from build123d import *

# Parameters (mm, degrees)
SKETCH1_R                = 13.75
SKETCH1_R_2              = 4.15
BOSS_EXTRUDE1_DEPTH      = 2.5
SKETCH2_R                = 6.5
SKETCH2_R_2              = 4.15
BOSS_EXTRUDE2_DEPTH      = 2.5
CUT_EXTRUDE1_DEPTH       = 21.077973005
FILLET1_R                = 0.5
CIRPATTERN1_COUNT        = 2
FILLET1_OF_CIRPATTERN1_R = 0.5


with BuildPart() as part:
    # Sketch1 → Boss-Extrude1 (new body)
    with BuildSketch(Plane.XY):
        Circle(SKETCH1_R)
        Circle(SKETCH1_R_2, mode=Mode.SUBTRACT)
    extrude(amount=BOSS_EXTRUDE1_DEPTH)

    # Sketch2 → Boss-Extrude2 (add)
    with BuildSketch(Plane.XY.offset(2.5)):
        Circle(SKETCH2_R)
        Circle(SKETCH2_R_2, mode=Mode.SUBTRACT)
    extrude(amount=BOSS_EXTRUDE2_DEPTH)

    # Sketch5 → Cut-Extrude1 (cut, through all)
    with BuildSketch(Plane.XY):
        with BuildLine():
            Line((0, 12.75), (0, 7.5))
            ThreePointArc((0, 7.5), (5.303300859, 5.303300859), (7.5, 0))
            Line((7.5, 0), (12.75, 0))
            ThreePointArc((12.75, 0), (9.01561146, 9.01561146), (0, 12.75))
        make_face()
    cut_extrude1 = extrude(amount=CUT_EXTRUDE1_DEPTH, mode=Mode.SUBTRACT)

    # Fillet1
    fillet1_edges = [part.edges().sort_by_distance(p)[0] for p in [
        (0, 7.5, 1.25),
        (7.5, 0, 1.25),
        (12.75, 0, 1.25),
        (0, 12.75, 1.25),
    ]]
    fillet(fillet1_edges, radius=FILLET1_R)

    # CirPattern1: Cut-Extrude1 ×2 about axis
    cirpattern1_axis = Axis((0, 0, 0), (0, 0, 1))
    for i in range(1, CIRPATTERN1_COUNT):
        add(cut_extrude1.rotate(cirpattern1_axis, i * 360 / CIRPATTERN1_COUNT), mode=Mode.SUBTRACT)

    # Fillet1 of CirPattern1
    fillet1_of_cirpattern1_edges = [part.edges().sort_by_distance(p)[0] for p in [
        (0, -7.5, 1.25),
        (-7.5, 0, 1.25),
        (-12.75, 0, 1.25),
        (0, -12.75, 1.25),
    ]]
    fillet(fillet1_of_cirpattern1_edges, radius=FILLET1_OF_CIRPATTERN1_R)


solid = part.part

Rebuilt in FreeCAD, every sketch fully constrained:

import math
import FreeCAD as App
import Part
import Sketcher

V = App.Vector


def edges_at(feature, points):
    """Names of the edges that pass closest to the given points."""
    edges = feature.Shape.Edges
    near = lambda p: min(range(len(edges)), key=lambda i: edges[i].distToShape(Part.Vertex(*p))[0])
    return sorted({f"Edge{near(p) + 1}" for p in points})

doc = App.newDocument("Part")
body = doc.addObject("PartDesign::Body", "Body")

# Sketch on XY plane
sketch1 = doc.addObject("Sketcher::SketchObject", "Sketch")
body.addObject(sketch1)
sketch1.AttachmentSupport = (doc.XY_Plane, [""])
sketch1.MapMode = "FlatFace"
sketch1.addGeometry(Part.Circle(V(0, 0, 0), V(0, 0, 1), 13.8), False)
sketch1.addGeometry(Part.Circle(V(0, 0, 0), V(0, 0, 1), 4.2), False)
sketch1.addConstraint(Sketcher.Constraint("Coincident", 0, 3, -1, 1))
sketch1.addConstraint(Sketcher.Constraint("Coincident", 1, 3, -1, 1))
sketch1.addConstraint(Sketcher.Constraint("Diameter", 0, 27.5))
sketch1.addConstraint(Sketcher.Constraint("Diameter", 1, 8.3))
pad1 = doc.addObject("PartDesign::Pad", "Pad")
body.addObject(pad1)
pad1.Profile = sketch1
pad1.Length = 2.5

# Sketch on XY plane
sketch2 = doc.addObject("Sketcher::SketchObject", "Sketch001")
body.addObject(sketch2)
sketch2.AttachmentSupport = (doc.XY_Plane, [""])
sketch2.MapMode = "FlatFace"
sketch2.AttachmentOffset = App.Placement(V(0, 0, 2.5), App.Rotation())
sketch2.addGeometry(Part.Circle(V(0, 0, 0), V(0, 0, 1), 6.5), False)
sketch2.addGeometry(Part.Circle(V(0, 0, 0), V(0, 0, 1), 4.2), False)
sketch2.addConstraint(Sketcher.Constraint("Coincident", 0, 3, -1, 1))
sketch2.addConstraint(Sketcher.Constraint("Coincident", 1, 3, -1, 1))
sketch2.addConstraint(Sketcher.Constraint("Diameter", 0, 13.0))
sketch2.addConstraint(Sketcher.Constraint("Diameter", 1, 8.3))
pad2 = doc.addObject("PartDesign::Pad", "Pad001")
body.addObject(pad2)
pad2.Profile = sketch2
pad2.Length = 2.5

# Sketch on XY plane
sketch3 = doc.addObject("Sketcher::SketchObject", "Sketch002")
body.addObject(sketch3)
sketch3.AttachmentSupport = (doc.XY_Plane, [""])
sketch3.MapMode = "FlatFace"
sketch3.addGeometry(Part.LineSegment(V(0, 13, 0), V(0, 8, 0)), False)
sketch3.addGeometry(Part.ArcOfCircle(Part.Circle(V(0, 0, 0), V(0, 0, 1), 8), math.radians(0), math.radians(90)), False)
sketch3.addGeometry(Part.LineSegment(V(8, 0, 0), V(13, 0, 0)), False)
sketch3.addGeometry(Part.ArcOfCircle(Part.Circle(V(0, 0, 0), V(0, 0, 1), 13), math.radians(0), math.radians(90)), False)
sketch3.addConstraint(Sketcher.Constraint("Coincident", 0, 2, 1, 2))
sketch3.addConstraint(Sketcher.Constraint("Coincident", 1, 1, 2, 1))
sketch3.addConstraint(Sketcher.Constraint("Coincident", 2, 2, 3, 1))
sketch3.addConstraint(Sketcher.Constraint("Coincident", 3, 2, 0, 1))
sketch3.addConstraint(Sketcher.Constraint("Vertical", 0))
sketch3.addConstraint(Sketcher.Constraint("Horizontal", 2))
sketch3.addConstraint(Sketcher.Constraint("Coincident", 1, 3, -1, 1))
sketch3.addConstraint(Sketcher.Constraint("Coincident", 3, 3, -1, 1))
sketch3.addConstraint(Sketcher.Constraint("PointOnObject", 0, 2, -2))
sketch3.addConstraint(Sketcher.Constraint("PointOnObject", 1, 1, -1))
sketch3.addConstraint(Sketcher.Constraint("Radius", 1, 7.5))
sketch3.addConstraint(Sketcher.Constraint("Radius", 3, 12.75))
pocket1 = doc.addObject("PartDesign::Pocket", "Pocket")
body.addObject(pocket1)
pocket1.Profile = sketch3
pocket1.Type = "ThroughAll"
pocket1.Reversed = True
doc.recompute()

fillet = doc.addObject("PartDesign::Fillet", "Fillet")
body.addObject(fillet)
fillet.Base = (pocket1, edges_at(pocket1, [
    (0, 7.5, 1.25),
    (7.5, 0, 1.25),
    (12.75, 0, 1.25),
    (0, 12.75, 1.25),
]))
fillet.Radius = 0.5
doc.recompute()

polarpattern = doc.addObject("PartDesign::PolarPattern", "PolarPattern")
body.addObject(polarpattern)
polarpattern.Originals = [pocket1]
polarpattern.Axis = (doc.Z_Axis, [""])
polarpattern.Angle = 360
polarpattern.Occurrences = 2
body.Tip = polarpattern
doc.recompute()

fillet2 = doc.addObject("PartDesign::Fillet", "Fillet001")
body.addObject(fillet2)
fillet2.Base = (polarpattern, edges_at(polarpattern, [
    (0, -7.5, 1.25),
    (-7.5, 0, 1.25),
    (-12.75, 0, 1.25),
    (0, -12.75, 1.25),
]))
fillet2.Radius = 0.5

doc.recompute()
